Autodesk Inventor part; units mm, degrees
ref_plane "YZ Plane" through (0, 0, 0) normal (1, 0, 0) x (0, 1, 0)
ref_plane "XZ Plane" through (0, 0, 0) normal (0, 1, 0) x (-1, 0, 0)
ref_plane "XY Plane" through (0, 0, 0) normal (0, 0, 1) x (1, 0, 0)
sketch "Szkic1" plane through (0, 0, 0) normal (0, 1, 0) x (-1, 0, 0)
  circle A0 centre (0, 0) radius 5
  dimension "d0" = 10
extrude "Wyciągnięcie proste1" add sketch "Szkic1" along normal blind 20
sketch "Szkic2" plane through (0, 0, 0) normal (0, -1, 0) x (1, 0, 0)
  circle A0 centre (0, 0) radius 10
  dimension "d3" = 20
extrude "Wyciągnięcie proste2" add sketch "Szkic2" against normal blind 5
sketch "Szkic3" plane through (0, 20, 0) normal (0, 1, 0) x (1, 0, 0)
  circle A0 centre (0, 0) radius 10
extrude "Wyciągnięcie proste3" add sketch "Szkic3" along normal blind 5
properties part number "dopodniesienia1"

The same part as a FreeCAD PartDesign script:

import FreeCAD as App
import Part
import Sketcher
from FreeCAD import Vector

doc = App.newDocument("Part")
body = doc.addObject("PartDesign::Body", "Body")

# Sketch on XZ plane
sketch1 = body.newObject("Sketcher::SketchObject", "Sketch")
sketch1.AttachmentSupport = (doc.getObject("XZ_Plane"), [""])
sketch1.MapMode = "FlatFace"
sketch1.addGeometry(Part.Circle(Vector(0, 0, 0), Vector(0, 0, 1), 5), False)
sketch1.addConstraint([
    Sketcher.Constraint("Coincident", 0, 3, -1, 1),
    Sketcher.Constraint("Diameter", 0, 10.0),
])
pad1 = body.newObject("PartDesign::Pad", "Pad")
pad1.Profile = sketch1
pad1.Length = 20
pad1.Reversed = True

# Sketch on XZ plane
sketch2 = body.newObject("Sketcher::SketchObject", "Sketch001")
sketch2.AttachmentSupport = (doc.getObject("XZ_Plane"), [""])
sketch2.MapMode = "FlatFace"
sketch2.addGeometry(Part.Circle(Vector(0, 0, 0), Vector(0, 0, 1), 10), False)
sketch2.addConstraint([
    Sketcher.Constraint("Coincident", 0, 3, -1, 1),
    Sketcher.Constraint("Diameter", 0, 20.0),
])
pad2 = body.newObject("PartDesign::Pad", "Pad001")
pad2.Profile = sketch2
pad2.Length = 5
pad2.Reversed = True

# Sketch on XZ plane
sketch3 = body.newObject("Sketcher::SketchObject", "Sketch002")
sketch3.AttachmentSupport = (doc.getObject("XZ_Plane"), [""])
sketch3.MapMode = "FlatFace"
sketch3.AttachmentOffset = App.Placement(Vector(0, 0, -20), App.Rotation())
sketch3.addGeometry(Part.Circle(Vector(0, 0, 0), Vector(0, 0, 1), 10), False)
sketch3.addConstraint([
    Sketcher.Constraint("Coincident", 0, 3, -1, 1),
    Sketcher.Constraint("Diameter", 0, 20.0),
])
pad3 = body.newObject("PartDesign::Pad", "Pad002")
pad3.Profile = sketch3
pad3.Length = 5
pad3.Reversed = True

doc.recompute()
